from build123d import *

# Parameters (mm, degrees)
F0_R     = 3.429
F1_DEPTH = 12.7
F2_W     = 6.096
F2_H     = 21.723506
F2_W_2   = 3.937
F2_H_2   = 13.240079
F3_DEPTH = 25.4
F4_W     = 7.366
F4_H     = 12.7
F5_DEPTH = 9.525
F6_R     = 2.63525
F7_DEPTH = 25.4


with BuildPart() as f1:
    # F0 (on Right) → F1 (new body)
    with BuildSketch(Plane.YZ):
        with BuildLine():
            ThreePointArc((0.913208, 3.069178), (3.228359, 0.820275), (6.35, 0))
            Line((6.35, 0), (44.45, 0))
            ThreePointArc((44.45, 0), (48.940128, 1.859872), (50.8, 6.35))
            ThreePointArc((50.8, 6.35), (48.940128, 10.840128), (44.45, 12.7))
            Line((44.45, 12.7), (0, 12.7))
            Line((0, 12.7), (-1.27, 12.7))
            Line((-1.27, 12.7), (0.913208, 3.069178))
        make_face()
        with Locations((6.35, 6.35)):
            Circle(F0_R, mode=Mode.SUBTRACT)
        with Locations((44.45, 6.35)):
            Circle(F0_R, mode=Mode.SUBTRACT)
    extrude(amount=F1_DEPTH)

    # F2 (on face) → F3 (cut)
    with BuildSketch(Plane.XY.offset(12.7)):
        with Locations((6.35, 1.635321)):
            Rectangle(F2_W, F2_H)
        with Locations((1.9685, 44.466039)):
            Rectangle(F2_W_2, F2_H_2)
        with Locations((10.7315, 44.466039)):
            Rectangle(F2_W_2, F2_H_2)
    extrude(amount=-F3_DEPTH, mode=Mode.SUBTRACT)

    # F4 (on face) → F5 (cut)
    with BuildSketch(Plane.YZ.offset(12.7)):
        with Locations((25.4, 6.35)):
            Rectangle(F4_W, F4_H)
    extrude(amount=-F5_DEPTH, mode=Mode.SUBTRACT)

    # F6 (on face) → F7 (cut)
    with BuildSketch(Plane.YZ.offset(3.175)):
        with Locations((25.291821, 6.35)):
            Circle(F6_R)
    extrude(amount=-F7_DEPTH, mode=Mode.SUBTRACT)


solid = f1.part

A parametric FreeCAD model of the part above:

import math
import FreeCAD as App
import Part
import Sketcher
from FreeCAD import Vector
Q = App.Units.Quantity

doc = App.newDocument("Part")
body = doc.addObject("PartDesign::Body", "Body")

sketch1 = body.newObject("Sketcher::SketchObject", "Sketch")
sketch1.AttachmentSupport = (doc.getObject("YZ_Plane"), [""])
sketch1.MapMode = "FlatFace"
sketch1.addGeometry([
    Part.ArcOfCircle(Part.Circle(Vector(6.35, 6.349999, 0), Vector(0, 0, 1), 6.349999), math.radians(-148.8912), math.radians(-89.999997)),
    Part.LineSegment(Vector(6.35, 0, 0), Vector(44.45, 0, 0)),
    Part.ArcOfCircle(Part.Circle(Vector(44.45, 6.35, 0), Vector(0, 0, 1), 6.35), math.radians(-89.999998), math.radians(-0.000002)),
    Part.ArcOfCircle(Part.Circle(Vector(44.45, 6.35, 0), Vector(0, 0, 1), 6.35), math.radians(0.000002), math.radians(89.999998)),
    Part.LineSegment(Vector(44.45, 12.7, 0), Vector(-1.27, 12.7, 0)),
    Part.LineSegment(Vector(-1.27, 12.7, 0), Vector(0.913208, 3.069178, 0)),
    Part.Circle(Vector(6.35, 6.35, 0), Vector(0, 0, 1), 3.429),
    Part.Circle(Vector(44.45, 6.35, 0), Vector(0, 0, 1), 3.429),
], False)
sketch1.addConstraint([
    Sketcher.Constraint("Tangent", 0, 2, 1, 1),
    Sketcher.Constraint("Tangent", 1, 2, 2, 1),
    Sketcher.Constraint("Tangent", 2, 2, 3, 1),
    Sketcher.Constraint("Tangent", 3, 2, 4, 1),
    Sketcher.Constraint("Coincident", 4, 2, 5, 1),
    Sketcher.Constraint("Coincident", 5, 2, 0, 1),
    Sketcher.Constraint("Horizontal", 1),
    Sketcher.Constraint("Horizontal", 4),
    Sketcher.Constraint("Coincident", 6, 3, 0, 3),
    Sketcher.Constraint("Coincident", 7, 3, 2, 3),
    Sketcher.Constraint("Equal", 0, 2),
    Sketcher.Constraint("Equal", 2, 3),
    Sketcher.Constraint("Equal", 6, 7),
    Sketcher.Constraint("PointOnObject", 0, 2, -1),
    Sketcher.Constraint("Horizontal", 7, 3, 2, 2),
    Sketcher.Constraint("Diameter", 6, Q("0.27 in")),
    Sketcher.Constraint("Radius", 0, Q("0.25 in")),
    Sketcher.Constraint("DistanceX", 1, 1, 1, 2, Q("1.5 in")),
    Sketcher.Constraint("DistanceX", 4, 2, 4, 1, Q("1.8 in")),
    Sketcher.Constraint("DistanceX", -1, 1, 2, 2, Q("2 in")),
    Sketcher.Constraint("DistanceX", -1, 1, 5, 2, 0.913208),
])
pad1 = body.newObject("PartDesign::Pad", "Pad")
pad1.Profile = sketch1
pad1.Length = Q("0.5 in")

sketch2 = body.newObject("Sketcher::SketchObject", "Sketch001")
sketch2.AttachmentSupport = (doc.getObject("XY_Plane"), [""])
sketch2.MapMode = "FlatFace"
sketch2.AttachmentOffset = App.Placement(Vector(0, 0, 0.5 * 25.4), App.Rotation())
sketch2.addGeometry([
    Part.LineSegment(Vector(3.302, 12.497074, 0), Vector(3.302, -9.226432, 0)),
    Part.LineSegment(Vector(3.302, -9.226432, 0), Vector(9.398, -9.226432, 0)),
    Part.LineSegment(Vector(9.398, -9.226432, 0), Vector(9.398, 12.497074, 0)),
    Part.LineSegment(Vector(9.398, 12.497074, 0), Vector(3.302, 12.497074, 0)),
    Part.LineSegment(Vector(0, 51.086078, 0), Vector(0, 37.845999, 0)),
    Part.LineSegment(Vector(0, 37.845999, 0), Vector(3.937, 37.845999, 0)),
    Part.LineSegment(Vector(3.937, 37.845999, 0), Vector(3.937, 51.086078, 0)),
    Part.LineSegment(Vector(3.937, 51.086078, 0), Vector(0, 51.086078, 0)),
    Part.LineSegment(Vector(8.763, 51.086078, 0), Vector(8.763, 37.845999, 0)),
    Part.LineSegment(Vector(8.763, 37.845999, 0), Vector(12.7, 37.845999, 0)),
    Part.LineSegment(Vector(12.7, 37.845999, 0), Vector(12.7, 51.086078, 0)),
    Part.LineSegment(Vector(12.7, 51.086078, 0), Vector(8.763, 51.086078, 0)),
], False)
sketch2.addConstraint([
    Sketcher.Constraint("Coincident", 0, 2, 1, 1),
    Sketcher.Constraint("Coincident", 1, 2, 2, 1),
    Sketcher.Constraint("Coincident", 2, 2, 3, 1),
    Sketcher.Constraint("Coincident", 3, 2, 0, 1),
    Sketcher.Constraint("Coincident", 4, 2, 5, 1),
    Sketcher.Constraint("Coincident", 5, 2, 6, 1),
    Sketcher.Constraint("Coincident", 6, 2, 7, 1),
    Sketcher.Constraint("Coincident", 7, 2, 4, 1),
    Sketcher.Constraint("Coincident", 8, 2, 9, 1),
    Sketcher.Constraint("Coincident", 9, 2, 10, 1),
    Sketcher.Constraint("Coincident", 10, 2, 11, 1),
    Sketcher.Constraint("Coincident", 11, 2, 8, 1),
    Sketcher.Constraint("Vertical", 0),
    Sketcher.Constraint("Horizontal", 1),
    Sketcher.Constraint("Vertical", 2),
    Sketcher.Constraint("Horizontal", 3),
    Sketcher.Constraint("Vertical", 4),
    Sketcher.Constraint("Horizontal", 5),
    Sketcher.Constraint("Vertical", 6),
    Sketcher.Constraint("Horizontal", 7),
    Sketcher.Constraint("Vertical", 8),
    Sketcher.Constraint("Horizontal", 9),
    Sketcher.Constraint("Vertical", 10),
    Sketcher.Constraint("Horizontal", 11),
    Sketcher.Constraint("PointOnObject", 4, 2, -2),
    Sketcher.Constraint("Horizontal", 5, 2, 8, 2),
    Sketcher.Constraint("Horizontal", 7, 2, 10, 2),
    Sketcher.Constraint("Equal", 7, 9),
    Sketcher.Constraint("DistanceX", 1, 1, 1, 2, Q("0.24 in")),
    Sketcher.Constraint("DistanceX", -1, 1, 9, 2, Q("0.5 in")),
    Sketcher.Constraint("DistanceX", 5, 1, 5, 2, Q("0.155 in")),
    Sketcher.Constraint("DistanceX", -1, 1, 0, 2, Q("0.13 in")),
    Sketcher.Constraint("DistanceY", -1, 1, 4, 2, Q("1.49 in")),
    Sketcher.Constraint("DistanceY", 4, 2, 4, 1, 13.240079),
    Sketcher.Constraint("DistanceY", 0, 2, 0, 1, 21.723506),
    Sketcher.Constraint("DistanceY", 0, 2, 4, 2, 47.072432),
])
pocket1 = body.newObject("PartDesign::Pocket", "Pocket")
pocket1.Profile = sketch2
pocket1.Length = Q("1 in")

sketch3 = body.newObject("Sketcher::SketchObject", "Sketch002")
sketch3.AttachmentSupport = (doc.getObject("YZ_Plane"), [""])
sketch3.MapMode = "FlatFace"
sketch3.AttachmentOffset = App.Placement(Vector(0, 0, 0.5 * 25.4), App.Rotation())
sketch3.addGeometry([
    Part.LineSegment(Vector(21.717, 12.7, 0), Vector(21.717, 0, 0)),
    Part.LineSegment(Vector(21.717, 0, 0), Vector(29.083, 0, 0)),
    Part.LineSegment(Vector(29.083, 0, 0), Vector(29.083, 12.7, 0)),
    Part.LineSegment(Vector(29.083, 12.7, 0), Vector(21.717, 12.7, 0)),
], False)
sketch3.addConstraint([
    Sketcher.Constraint("Coincident", 0, 2, 1, 1),
    Sketcher.Constraint("Coincident", 1, 2, 2, 1),
    Sketcher.Constraint("Coincident", 2, 2, 3, 1),
    Sketcher.Constraint("Coincident", 3, 2, 0, 1),
    Sketcher.Constraint("Vertical", 0),
    Sketcher.Constraint("Horizontal", 1),
    Sketcher.Constraint("Vertical", 2),
    Sketcher.Constraint("Horizontal", 3),
    Sketcher.Constraint("PointOnObject", 0, 2, -1),
    Sketcher.Constraint("DistanceY", 0, 2, 0, 1, Q("0.5 in")),
    Sketcher.Constraint("DistanceX", 1, 1, 1, 2, Q("0.29 in")),
    Sketcher.Constraint("DistanceX", -1, 1, 0, 2, Q("0.855 in")),
])
pocket2 = body.newObject("PartDesign::Pocket", "Pocket001")
pocket2.Profile = sketch3
pocket2.Length = Q("0.375 in")

sketch4 = body.newObject("Sketcher::SketchObject", "Sketch003")
sketch4.AttachmentSupport = (doc.getObject("YZ_Plane"), [""])
sketch4.MapMode = "FlatFace"
sketch4.AttachmentOffset = App.Placement(Vector(0, 0, 0.125 * 25.4), App.Rotation())
sketch4.addGeometry(Part.Circle(Vector(25.291821, 6.35, 0), Vector(0, 0, 1), 2.63525), False)
sketch4.addConstraint([
    Sketcher.Constraint("Diameter", 0, Q("0.2075 in")),
    Sketcher.Constraint("DistanceY", -1, 1, 0, 3, Q("0.25 in")),
    Sketcher.Constraint("DistanceX", -1, 1, 0, 3, 25.291821),
])
pocket3 = body.newObject("PartDesign::Pocket", "Pocket002")
pocket3.Profile = sketch4
pocket3.Length = Q("1 in")

doc.recompute()
